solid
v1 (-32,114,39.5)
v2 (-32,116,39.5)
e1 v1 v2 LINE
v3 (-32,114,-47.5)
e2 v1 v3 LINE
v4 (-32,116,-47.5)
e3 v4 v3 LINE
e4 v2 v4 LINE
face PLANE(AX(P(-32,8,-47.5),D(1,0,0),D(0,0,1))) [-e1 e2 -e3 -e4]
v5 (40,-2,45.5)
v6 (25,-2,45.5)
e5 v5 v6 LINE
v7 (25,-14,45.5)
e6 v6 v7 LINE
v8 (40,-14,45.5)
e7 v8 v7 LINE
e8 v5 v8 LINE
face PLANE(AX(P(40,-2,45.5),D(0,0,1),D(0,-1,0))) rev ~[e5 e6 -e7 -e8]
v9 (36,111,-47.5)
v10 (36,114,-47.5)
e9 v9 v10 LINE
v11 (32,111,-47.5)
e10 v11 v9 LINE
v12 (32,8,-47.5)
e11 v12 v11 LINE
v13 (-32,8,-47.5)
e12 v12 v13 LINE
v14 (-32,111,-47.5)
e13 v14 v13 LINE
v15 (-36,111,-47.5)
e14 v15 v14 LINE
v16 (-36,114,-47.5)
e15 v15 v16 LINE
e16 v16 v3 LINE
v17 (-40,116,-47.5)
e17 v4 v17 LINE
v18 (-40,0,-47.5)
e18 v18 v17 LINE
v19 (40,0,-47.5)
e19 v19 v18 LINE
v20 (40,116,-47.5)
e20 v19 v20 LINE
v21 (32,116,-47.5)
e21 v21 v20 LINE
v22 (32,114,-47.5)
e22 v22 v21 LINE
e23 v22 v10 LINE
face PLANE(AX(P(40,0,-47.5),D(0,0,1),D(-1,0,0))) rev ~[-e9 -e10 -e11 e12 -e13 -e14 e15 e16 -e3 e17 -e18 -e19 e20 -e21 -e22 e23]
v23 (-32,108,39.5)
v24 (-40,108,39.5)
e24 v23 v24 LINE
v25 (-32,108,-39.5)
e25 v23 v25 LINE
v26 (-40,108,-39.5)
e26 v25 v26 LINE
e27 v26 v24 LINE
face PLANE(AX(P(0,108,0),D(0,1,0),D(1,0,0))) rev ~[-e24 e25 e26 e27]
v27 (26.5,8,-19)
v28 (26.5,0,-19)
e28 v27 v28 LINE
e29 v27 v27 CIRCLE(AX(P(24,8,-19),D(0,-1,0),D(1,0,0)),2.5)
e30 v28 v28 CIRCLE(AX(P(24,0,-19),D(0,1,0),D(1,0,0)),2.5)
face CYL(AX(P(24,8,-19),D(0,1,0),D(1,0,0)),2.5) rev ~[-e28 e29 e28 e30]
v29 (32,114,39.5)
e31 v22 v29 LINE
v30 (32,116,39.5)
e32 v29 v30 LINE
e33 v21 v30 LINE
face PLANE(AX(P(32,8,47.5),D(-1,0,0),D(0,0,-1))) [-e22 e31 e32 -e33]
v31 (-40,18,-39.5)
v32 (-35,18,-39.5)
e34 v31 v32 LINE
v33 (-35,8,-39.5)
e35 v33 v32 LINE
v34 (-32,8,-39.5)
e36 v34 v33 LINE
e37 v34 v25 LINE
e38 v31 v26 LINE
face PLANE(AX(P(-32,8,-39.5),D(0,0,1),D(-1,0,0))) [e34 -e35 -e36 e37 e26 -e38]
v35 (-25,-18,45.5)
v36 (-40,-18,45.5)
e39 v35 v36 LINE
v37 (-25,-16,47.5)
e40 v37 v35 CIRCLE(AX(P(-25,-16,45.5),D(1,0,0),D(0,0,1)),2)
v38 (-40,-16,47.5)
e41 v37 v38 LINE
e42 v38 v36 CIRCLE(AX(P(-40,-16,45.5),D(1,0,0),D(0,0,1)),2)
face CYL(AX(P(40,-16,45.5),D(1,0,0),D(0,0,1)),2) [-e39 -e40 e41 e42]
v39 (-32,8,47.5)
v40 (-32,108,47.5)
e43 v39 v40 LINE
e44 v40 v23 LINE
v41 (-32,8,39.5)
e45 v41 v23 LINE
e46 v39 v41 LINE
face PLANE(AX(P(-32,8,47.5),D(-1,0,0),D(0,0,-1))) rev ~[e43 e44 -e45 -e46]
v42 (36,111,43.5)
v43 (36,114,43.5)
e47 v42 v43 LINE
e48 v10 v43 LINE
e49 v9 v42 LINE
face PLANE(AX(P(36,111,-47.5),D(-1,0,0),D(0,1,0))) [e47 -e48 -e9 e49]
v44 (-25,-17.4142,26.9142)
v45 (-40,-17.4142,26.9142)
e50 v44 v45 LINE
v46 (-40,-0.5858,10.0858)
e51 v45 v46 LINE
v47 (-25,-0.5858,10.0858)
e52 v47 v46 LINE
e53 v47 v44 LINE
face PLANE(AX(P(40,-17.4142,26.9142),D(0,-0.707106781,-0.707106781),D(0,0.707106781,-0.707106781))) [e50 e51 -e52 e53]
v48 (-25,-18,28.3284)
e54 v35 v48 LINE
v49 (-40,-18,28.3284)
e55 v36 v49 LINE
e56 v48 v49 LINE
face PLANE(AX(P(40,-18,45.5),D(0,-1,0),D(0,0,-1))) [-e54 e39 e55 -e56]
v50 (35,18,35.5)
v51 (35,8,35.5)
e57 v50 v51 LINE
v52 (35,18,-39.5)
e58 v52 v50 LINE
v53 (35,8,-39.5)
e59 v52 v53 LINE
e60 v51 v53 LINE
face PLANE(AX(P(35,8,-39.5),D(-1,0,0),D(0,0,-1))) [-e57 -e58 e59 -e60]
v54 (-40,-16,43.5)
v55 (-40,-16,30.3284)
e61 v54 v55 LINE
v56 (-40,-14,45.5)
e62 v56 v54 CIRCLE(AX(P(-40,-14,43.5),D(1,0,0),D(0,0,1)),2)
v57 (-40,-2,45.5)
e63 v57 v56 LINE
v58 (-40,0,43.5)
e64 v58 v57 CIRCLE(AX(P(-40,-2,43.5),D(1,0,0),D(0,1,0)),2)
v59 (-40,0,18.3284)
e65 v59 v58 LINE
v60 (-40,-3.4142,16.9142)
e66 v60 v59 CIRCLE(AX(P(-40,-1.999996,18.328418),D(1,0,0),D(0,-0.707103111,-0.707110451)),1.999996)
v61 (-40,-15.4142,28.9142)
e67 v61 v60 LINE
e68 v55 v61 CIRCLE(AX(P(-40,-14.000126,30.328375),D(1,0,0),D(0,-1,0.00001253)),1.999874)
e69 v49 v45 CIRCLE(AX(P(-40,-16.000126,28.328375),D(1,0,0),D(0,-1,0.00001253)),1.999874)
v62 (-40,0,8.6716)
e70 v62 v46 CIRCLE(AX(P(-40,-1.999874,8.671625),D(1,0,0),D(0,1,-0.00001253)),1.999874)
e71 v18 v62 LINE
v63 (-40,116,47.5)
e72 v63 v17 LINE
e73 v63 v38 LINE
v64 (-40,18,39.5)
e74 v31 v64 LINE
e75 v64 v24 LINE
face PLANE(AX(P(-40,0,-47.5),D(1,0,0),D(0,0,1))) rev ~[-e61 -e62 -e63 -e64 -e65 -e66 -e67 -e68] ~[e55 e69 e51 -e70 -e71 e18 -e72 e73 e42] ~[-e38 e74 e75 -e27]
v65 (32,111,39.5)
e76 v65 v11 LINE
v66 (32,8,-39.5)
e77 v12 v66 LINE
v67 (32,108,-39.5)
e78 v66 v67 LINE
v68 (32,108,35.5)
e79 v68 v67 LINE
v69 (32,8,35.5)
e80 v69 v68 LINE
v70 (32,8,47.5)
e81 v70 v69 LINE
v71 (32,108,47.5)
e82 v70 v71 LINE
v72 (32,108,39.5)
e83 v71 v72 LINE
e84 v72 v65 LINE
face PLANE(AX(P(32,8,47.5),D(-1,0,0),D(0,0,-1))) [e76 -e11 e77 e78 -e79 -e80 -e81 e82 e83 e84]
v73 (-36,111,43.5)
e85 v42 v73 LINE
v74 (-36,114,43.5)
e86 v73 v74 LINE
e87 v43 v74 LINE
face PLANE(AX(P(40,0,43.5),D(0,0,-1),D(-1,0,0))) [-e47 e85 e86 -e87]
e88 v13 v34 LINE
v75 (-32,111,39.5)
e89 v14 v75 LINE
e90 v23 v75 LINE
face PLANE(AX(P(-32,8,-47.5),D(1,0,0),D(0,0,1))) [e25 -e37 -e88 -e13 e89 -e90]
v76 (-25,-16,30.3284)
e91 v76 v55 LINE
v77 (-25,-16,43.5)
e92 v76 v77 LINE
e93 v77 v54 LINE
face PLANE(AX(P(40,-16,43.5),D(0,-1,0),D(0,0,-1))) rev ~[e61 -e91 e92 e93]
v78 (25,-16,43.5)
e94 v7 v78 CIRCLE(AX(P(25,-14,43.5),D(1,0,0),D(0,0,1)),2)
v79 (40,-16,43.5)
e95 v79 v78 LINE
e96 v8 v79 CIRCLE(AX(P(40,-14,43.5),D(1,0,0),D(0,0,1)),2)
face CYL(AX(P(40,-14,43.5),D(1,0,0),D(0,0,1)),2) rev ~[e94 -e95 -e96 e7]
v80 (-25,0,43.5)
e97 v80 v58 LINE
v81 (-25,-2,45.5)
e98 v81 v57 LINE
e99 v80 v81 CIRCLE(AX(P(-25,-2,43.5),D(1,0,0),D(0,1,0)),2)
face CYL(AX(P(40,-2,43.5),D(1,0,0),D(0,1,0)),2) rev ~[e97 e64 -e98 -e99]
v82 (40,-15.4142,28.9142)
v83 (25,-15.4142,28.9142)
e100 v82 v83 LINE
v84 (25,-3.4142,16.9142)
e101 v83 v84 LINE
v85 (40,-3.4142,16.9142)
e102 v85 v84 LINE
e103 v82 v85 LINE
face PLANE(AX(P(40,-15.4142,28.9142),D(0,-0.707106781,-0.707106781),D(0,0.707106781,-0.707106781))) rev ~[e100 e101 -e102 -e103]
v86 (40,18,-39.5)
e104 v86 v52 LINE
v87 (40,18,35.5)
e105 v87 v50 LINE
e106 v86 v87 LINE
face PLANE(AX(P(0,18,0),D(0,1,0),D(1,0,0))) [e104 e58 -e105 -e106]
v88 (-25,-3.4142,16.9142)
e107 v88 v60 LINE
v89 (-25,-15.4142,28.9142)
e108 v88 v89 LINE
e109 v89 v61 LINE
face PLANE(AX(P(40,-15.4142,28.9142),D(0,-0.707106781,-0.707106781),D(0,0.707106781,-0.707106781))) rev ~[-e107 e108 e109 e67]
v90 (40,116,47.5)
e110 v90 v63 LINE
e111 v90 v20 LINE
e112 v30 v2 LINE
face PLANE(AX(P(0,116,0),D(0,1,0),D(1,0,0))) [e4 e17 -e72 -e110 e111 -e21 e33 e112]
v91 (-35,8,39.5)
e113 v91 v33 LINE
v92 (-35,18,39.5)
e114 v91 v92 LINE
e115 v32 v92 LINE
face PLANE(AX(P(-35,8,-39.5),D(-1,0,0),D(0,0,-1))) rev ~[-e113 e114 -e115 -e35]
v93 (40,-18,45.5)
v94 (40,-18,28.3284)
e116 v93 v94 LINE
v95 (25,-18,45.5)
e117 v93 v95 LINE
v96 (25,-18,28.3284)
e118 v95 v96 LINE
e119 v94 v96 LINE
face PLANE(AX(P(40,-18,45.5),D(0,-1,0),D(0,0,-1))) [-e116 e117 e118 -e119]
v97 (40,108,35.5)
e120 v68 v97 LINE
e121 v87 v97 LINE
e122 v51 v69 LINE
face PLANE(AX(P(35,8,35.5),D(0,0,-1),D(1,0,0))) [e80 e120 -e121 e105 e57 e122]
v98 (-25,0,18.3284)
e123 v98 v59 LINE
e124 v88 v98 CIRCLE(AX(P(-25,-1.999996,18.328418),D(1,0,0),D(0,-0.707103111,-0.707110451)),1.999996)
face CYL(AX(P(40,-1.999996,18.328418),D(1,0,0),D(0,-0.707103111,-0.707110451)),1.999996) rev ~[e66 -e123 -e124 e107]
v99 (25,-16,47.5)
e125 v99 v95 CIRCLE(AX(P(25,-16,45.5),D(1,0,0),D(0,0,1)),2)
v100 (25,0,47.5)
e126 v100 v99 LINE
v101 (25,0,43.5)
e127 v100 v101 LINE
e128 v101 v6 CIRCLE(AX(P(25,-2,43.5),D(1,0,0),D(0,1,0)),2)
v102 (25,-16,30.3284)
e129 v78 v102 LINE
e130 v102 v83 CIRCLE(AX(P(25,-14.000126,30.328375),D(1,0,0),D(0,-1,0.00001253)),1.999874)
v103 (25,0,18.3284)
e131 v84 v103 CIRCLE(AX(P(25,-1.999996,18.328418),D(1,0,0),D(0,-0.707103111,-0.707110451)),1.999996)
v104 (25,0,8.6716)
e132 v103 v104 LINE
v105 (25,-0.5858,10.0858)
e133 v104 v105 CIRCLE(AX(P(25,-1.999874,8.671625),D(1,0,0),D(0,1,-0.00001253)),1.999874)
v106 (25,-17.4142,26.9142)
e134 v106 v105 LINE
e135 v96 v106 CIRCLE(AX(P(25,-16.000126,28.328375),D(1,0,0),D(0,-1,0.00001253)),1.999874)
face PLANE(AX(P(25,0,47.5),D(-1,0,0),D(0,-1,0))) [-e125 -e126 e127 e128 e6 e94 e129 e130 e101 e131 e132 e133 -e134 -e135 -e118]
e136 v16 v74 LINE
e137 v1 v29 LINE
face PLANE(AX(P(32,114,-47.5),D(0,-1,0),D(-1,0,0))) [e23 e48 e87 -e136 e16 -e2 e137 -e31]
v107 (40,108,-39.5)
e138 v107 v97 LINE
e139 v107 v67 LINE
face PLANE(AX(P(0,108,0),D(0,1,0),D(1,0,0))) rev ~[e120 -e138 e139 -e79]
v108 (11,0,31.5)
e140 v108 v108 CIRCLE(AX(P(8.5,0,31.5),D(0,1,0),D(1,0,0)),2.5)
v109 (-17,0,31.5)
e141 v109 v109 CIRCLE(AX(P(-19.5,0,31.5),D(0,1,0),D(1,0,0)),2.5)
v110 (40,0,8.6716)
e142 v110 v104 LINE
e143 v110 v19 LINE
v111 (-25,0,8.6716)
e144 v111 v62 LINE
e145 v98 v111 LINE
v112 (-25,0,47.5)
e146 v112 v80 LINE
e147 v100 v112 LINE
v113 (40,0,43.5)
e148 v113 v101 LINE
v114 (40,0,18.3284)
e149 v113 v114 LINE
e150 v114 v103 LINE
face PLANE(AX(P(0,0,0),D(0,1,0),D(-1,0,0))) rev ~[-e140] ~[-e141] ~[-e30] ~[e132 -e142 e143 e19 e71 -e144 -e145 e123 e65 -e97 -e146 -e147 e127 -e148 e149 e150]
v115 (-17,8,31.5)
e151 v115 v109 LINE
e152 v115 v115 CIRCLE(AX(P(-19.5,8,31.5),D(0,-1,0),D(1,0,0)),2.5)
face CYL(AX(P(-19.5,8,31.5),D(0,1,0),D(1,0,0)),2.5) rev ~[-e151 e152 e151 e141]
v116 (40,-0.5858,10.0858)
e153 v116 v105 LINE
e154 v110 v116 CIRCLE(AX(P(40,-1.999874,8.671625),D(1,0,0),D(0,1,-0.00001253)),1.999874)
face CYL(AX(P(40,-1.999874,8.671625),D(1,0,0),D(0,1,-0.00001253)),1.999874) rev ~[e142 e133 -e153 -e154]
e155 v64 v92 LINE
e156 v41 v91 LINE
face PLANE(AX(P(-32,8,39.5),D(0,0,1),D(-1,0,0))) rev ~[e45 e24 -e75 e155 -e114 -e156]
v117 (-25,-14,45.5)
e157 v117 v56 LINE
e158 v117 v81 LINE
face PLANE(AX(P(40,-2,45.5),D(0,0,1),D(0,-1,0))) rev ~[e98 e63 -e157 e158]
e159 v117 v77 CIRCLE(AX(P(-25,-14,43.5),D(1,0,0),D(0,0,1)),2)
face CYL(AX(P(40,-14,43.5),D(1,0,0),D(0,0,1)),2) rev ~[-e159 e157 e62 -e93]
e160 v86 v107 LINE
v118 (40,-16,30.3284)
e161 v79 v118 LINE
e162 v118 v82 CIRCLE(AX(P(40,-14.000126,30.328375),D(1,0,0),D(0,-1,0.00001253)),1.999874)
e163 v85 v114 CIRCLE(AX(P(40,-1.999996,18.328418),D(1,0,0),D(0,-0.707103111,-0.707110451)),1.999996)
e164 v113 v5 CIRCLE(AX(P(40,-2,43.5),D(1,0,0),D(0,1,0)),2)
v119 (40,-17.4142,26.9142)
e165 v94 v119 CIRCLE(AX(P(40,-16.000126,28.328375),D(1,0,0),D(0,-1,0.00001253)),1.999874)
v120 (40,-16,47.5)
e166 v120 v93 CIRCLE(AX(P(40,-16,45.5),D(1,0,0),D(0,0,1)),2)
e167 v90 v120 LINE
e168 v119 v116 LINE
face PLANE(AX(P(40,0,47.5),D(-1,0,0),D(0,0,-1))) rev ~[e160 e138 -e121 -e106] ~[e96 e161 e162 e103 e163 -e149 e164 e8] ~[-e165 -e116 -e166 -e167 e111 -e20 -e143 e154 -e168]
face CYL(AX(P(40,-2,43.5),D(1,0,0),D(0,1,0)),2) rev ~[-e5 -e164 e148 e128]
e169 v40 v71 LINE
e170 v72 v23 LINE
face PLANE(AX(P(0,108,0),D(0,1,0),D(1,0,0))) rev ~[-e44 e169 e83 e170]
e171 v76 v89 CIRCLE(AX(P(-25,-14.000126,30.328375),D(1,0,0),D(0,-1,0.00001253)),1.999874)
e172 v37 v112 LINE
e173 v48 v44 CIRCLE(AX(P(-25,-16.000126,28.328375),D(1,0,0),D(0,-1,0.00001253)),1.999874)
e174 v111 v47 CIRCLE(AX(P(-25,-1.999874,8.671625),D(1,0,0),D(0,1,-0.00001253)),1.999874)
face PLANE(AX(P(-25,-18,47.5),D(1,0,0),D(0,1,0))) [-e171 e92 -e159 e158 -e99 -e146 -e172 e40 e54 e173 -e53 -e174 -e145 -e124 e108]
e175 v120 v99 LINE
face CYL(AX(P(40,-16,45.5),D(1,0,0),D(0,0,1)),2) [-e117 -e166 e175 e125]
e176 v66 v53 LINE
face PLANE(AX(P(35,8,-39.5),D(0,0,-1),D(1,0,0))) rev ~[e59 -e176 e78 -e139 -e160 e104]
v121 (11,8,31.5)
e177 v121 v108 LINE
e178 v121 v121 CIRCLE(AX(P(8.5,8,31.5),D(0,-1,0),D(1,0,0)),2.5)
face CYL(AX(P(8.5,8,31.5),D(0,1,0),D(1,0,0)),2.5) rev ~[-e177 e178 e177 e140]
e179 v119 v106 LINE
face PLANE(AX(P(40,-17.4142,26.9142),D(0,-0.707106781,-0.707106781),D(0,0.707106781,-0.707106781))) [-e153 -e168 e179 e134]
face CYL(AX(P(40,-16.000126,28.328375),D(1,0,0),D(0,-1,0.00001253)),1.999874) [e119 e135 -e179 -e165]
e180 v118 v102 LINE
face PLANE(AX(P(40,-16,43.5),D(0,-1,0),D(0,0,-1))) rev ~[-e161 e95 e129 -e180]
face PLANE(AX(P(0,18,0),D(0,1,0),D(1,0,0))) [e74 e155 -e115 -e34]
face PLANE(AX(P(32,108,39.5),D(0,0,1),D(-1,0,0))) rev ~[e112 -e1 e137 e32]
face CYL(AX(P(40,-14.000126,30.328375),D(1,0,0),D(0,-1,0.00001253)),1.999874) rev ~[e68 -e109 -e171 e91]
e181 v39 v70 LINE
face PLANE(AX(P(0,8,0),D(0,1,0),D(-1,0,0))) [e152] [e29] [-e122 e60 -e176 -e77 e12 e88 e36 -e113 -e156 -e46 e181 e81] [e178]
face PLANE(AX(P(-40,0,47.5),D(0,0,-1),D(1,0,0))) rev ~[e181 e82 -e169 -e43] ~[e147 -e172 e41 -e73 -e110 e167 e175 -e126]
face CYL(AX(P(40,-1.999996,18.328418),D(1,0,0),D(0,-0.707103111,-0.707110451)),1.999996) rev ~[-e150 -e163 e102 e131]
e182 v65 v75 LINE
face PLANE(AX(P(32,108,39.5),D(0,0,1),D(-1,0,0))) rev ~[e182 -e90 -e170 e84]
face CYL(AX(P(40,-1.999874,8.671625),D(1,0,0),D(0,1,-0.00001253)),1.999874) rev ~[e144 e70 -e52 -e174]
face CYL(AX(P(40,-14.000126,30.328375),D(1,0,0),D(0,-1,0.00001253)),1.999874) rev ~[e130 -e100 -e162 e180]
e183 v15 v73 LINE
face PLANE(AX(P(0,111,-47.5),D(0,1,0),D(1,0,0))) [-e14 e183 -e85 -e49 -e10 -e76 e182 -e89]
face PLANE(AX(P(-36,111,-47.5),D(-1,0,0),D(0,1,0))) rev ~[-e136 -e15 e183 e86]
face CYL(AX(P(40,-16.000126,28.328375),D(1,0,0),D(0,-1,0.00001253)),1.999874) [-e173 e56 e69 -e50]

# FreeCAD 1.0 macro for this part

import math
import FreeCAD as App
import Part
import Sketcher

V = App.Vector
Q = App.Units.Quantity

doc = App.newDocument("Part")
body = doc.addObject("PartDesign::Body", "Body")

sketch1 = doc.addObject("Sketcher::SketchObject", "Sketch")
body.addObject(sketch1)
sketch1.AttachmentSupport = (doc.XZ_Plane, [""])
sketch1.MapMode = "FlatFace"
sketch1.addGeometry(Part.LineSegment(V(40, 48, 0), V(40, -48, 0)), False)
sketch1.addGeometry(Part.LineSegment(V(40, -48, 0), V(-40, -48, 0)), False)
sketch1.addGeometry(Part.LineSegment(V(-40, -48, 0), V(-40, 48, 0)), False)
sketch1.addGeometry(Part.LineSegment(V(-40, 48, 0), V(40, 48, 0)), False)
sketch1.addConstraint(Sketcher.Constraint("Coincident", 0, 2, 1, 1))
sketch1.addConstraint(Sketcher.Constraint("Coincident", 1, 2, 2, 1))
sketch1.addConstraint(Sketcher.Constraint("Coincident", 2, 2, 3, 1))
sketch1.addConstraint(Sketcher.Constraint("Coincident", 3, 2, 0, 1))
sketch1.addConstraint(Sketcher.Constraint("Vertical", 0))
sketch1.addConstraint(Sketcher.Constraint("Horizontal", 1))
sketch1.addConstraint(Sketcher.Constraint("Vertical", 2))
sketch1.addConstraint(Sketcher.Constraint("Horizontal", 3))
sketch1.addConstraint(Sketcher.Constraint("Symmetric", 0, 2, 2, 2, -1, 1))
sketch1.addConstraint(Sketcher.Constraint("DistanceX", 1, 2, 1, 1, Q("80 mm")))
sketch1.addConstraint(Sketcher.Constraint("DistanceY", 0, 2, 0, 1, Q("95 mm")))
pad1 = doc.addObject("PartDesign::Pad", "Pad")
body.addObject(pad1)
pad1.Profile = sketch1
pad1.Length = 8
pad1.Reversed = True

sketch2 = doc.addObject("Sketcher::SketchObject", "Sketch001")
body.addObject(sketch2)
sketch2.AttachmentSupport = (doc.YZ_Plane, [""])
sketch2.MapMode = "FlatFace"
sketch2.AttachmentOffset = App.Placement(V(0, 0, 40), App.Rotation())
sketch2.addGeometry(Part.LineSegment(V(0, 43.5, 0), V(0, 47.5, 0)), False)
sketch2.addGeometry(Part.LineSegment(V(0, 47.5, 0), V(-16, 47.5, 0)), False)
sketch2.addGeometry(Part.ArcOfCircle(Part.Circle(V(-16, 45.5, 0), V(0, 0, 1), 2), math.radians(90), math.radians(180)), False)
sketch2.addGeometry(Part.LineSegment(V(-18, 45.5, 0), V(-18, 28.3, 0)), False)
sketch2.addGeometry(Part.ArcOfCircle(Part.Circle(V(-16, 28.3, 0), V(0, 0, 1), 2), math.radians(180), math.radians(225)), False)
sketch2.addGeometry(Part.LineSegment(V(-17.4, 26.9, 0), V(-0.6, 10.1, 0)), False)
sketch2.addGeometry(Part.ArcOfCircle(Part.Circle(V(-2, 8.7, 0), V(0, 0, 1), 2), math.radians(0), math.radians(45)), False)
sketch2.addGeometry(Part.LineSegment(V(0, 8.7, 0), V(0, 18.3, 0)), False)
sketch2.addGeometry(Part.ArcOfCircle(Part.Circle(V(-2, 18.3, 0), V(0, 0, 1), 2), math.radians(-135), math.radians(0)), False)
sketch2.addGeometry(Part.LineSegment(V(-3.4, 16.9, 0), V(-15.4, 28.9, 0)), False)
sketch2.addGeometry(Part.ArcOfCircle(Part.Circle(V(-14, 30.3, 0), V(0, 0, 1), 2), math.radians(180), math.radians(225)), False)
sketch2.addGeometry(Part.LineSegment(V(-16, 30.3, 0), V(-16, 43.5, 0)), False)
sketch2.addGeometry(Part.ArcOfCircle(Part.Circle(V(-14, 43.5, 0), V(0, 0, 1), 2), math.radians(90), math.radians(180)), False)
sketch2.addGeometry(Part.LineSegment(V(-14, 45.5, 0), V(-2, 45.5, 0)), False)
sketch2.addGeometry(Part.ArcOfCircle(Part.Circle(V(-2, 43.5, 0), V(0, 0, 1), 2), math.radians(0), math.radians(90)), False)
sketch2.addConstraint(Sketcher.Constraint("Coincident", 0, 2, 1, 1))
sketch2.addConstraint(Sketcher.Constraint("Tangent", 1, 2, 2, 1))
sketch2.addConstraint(Sketcher.Constraint("Tangent", 2, 2, 3, 1))
sketch2.addConstraint(Sketcher.Constraint("Tangent", 3, 2, 4, 1))
sketch2.addConstraint(Sketcher.Constraint("Tangent", 4, 2, 5, 1))
sketch2.addConstraint(Sketcher.Constraint("Tangent", 5, 2, 6, 2))
sketch2.addConstraint(Sketcher.Constraint("Tangent", 6, 1, 7, 1))
sketch2.addConstraint(Sketcher.Constraint("Tangent", 7, 2, 8, 2))
sketch2.addConstraint(Sketcher.Constraint("Tangent", 8, 1, 9, 1))
sketch2.addConstraint(Sketcher.Constraint("Tangent", 9, 2, 10, 2))
sketch2.addConstraint(Sketcher.Constraint("Tangent", 10, 1, 11, 1))
sketch2.addConstraint(Sketcher.Constraint("Tangent", 11, 2, 12, 2))
sketch2.addConstraint(Sketcher.Constraint("Tangent", 12, 1, 13, 1))
sketch2.addConstraint(Sketcher.Constraint("Tangent", 13, 2, 14, 2))
sketch2.addConstraint(Sketcher.Constraint("Tangent", 14, 1, 0, 1))
sketch2.addConstraint(Sketcher.Constraint("Vertical", 0))
sketch2.addConstraint(Sketcher.Constraint("Horizontal", 1))
sketch2.addConstraint(Sketcher.Constraint("Vertical", 3))
sketch2.addConstraint(Sketcher.Constraint("Vertical", 7))
sketch2.addConstraint(Sketcher.Constraint("Vertical", 11))
sketch2.addConstraint(Sketcher.Constraint("Horizontal", 13))
sketch2.addConstraint(Sketcher.Constraint("Equal", 2, 4))
sketch2.addConstraint(Sketcher.Constraint("Equal", 4, 6))
sketch2.addConstraint(Sketcher.Constraint("Equal", 6, 8))
sketch2.addConstraint(Sketcher.Constraint("Equal", 8, 10))
sketch2.addConstraint(Sketcher.Constraint("Equal", 10, 12))
sketch2.addConstraint(Sketcher.Constraint("Equal", 12, 14))
sketch2.addConstraint(Sketcher.Constraint("PointOnObject", 0, 2, -2))
sketch2.addConstraint(Sketcher.Constraint("PointOnObject", 6, 1, -2))
sketch2.addConstraint(Sketcher.Constraint("Parallel", 5, 9))
sketch2.addConstraint(Sketcher.Constraint("Horizontal", 2, 2, 12, 1))
sketch2.addConstraint(Sketcher.Constraint("Vertical", 1, 2, 10, 1))
sketch2.addConstraint(Sketcher.Constraint("Radius", 2, Q("2 mm")))
sketch2.addConstraint(Sketcher.Constraint("Angle", 5, Q("-45 deg")))
sketch2.addConstraint(Sketcher.Constraint("DistanceX", 2, 2, -1, 1, Q("18 mm")))
sketch2.addConstraint(Sketcher.Constraint("DistanceY", 4, 3, 10, 3, Q("2 mm")))
sketch2.addConstraint(Sketcher.Constraint("DistanceY", -1, 1, 2, 3, Q("45.5 mm")))
sketch2.addConstraint(Sketcher.Constraint("DistanceY", 3, 2, 3, 1, Q("17.1716 mm")))
pad2 = doc.addObject("PartDesign::Pad", "Pad001")
body.addObject(pad2)
pad2.Profile = sketch2
pad2.Length = 80
pad2.Reversed = True

sketch3 = doc.addObject("Sketcher::SketchObject", "Sketch002")
body.addObject(sketch3)
sketch3.AttachmentSupport = (doc.XY_Plane, [""])
sketch3.MapMode = "FlatFace"
sketch3.AttachmentOffset = App.Placement(V(0, 0, 47.5), App.Rotation())
sketch3.addGeometry(Part.LineSegment(V(25, -18, 0), V(25, 0, 0)), False)
sketch3.addGeometry(Part.LineSegment(V(25, 0, 0), V(-25, 0, 0)), False)
sketch3.addGeometry(Part.LineSegment(V(-25, 0, 0), V(-25, -18, 0)), False)
sketch3.addGeometry(Part.LineSegment(V(-25, -18, 0), V(25, -18, 0)), False)
sketch3.addConstraint(Sketcher.Constraint("Coincident", 0, 2, 1, 1))
sketch3.addConstraint(Sketcher.Constraint("Coincident", 1, 2, 2, 1))
sketch3.addConstraint(Sketcher.Constraint("Coincident", 2, 2, 3, 1))
sketch3.addConstraint(Sketcher.Constraint("Coincident", 3, 2, 0, 1))
sketch3.addConstraint(Sketcher.Constraint("Vertical", 0))
sketch3.addConstraint(Sketcher.Constraint("Horizontal", 1))
sketch3.addConstraint(Sketcher.Constraint("Vertical", 2))
sketch3.addConstraint(Sketcher.Constraint("Horizontal", 3))
sketch3.addConstraint(Sketcher.Constraint("Symmetric", 0, 2, 1, 2, -1, 1))
sketch3.addConstraint(Sketcher.Constraint("DistanceX", 1, 2, 1, 1, Q("50 mm")))
sketch3.addConstraint(Sketcher.Constraint("DistanceY", 0, 1, 0, 2, Q("18 mm")))
pocket1 = doc.addObject("PartDesign::Pocket", "Pocket")
body.addObject(pocket1)
pocket1.Profile = sketch3
pocket1.Length = 39

sketch4 = doc.addObject("Sketcher::SketchObject", "Sketch003")
body.addObject(sketch4)
sketch4.AttachmentSupport = (doc.XZ_Plane, [""])
sketch4.MapMode = "FlatFace"
sketch4.AttachmentOffset = App.Placement(V(0, 0, -8), App.Rotation())
sketch4.addGeometry(Part.LineSegment(V(40, -48, 0), V(35, -48, 0)), False)
sketch4.addGeometry(Part.LineSegment(V(35, -48, 0), V(35, 48, 0)), False)
sketch4.addGeometry(Part.LineSegment(V(35, 48, 0), V(40, 48, 0)), False)
sketch4.addGeometry(Part.LineSegment(V(40, 48, 0), V(40, -48, 0)), False)
sketch4.addGeometry(Part.LineSegment(V(-35, -48, 0), V(-40, -48, 0)), False)
sketch4.addGeometry(Part.LineSegment(V(-40, -48, 0), V(-40, 48, 0)), False)
sketch4.addGeometry(Part.LineSegment(V(-40, 48, 0), V(-35, 48, 0)), False)
sketch4.addGeometry(Part.LineSegment(V(-35, 48, 0), V(-35, -48, 0)), False)
sketch4.addConstraint(Sketcher.Constraint("Coincident", 0, 2, 1, 1))
sketch4.addConstraint(Sketcher.Constraint("Coincident", 1, 2, 2, 1))
sketch4.addConstraint(Sketcher.Constraint("Coincident", 2, 2, 3, 1))
sketch4.addConstraint(Sketcher.Constraint("Coincident", 3, 2, 0, 1))
sketch4.addConstraint(Sketcher.Constraint("Coincident", 4, 2, 5, 1))
sketch4.addConstraint(Sketcher.Constraint("Coincident", 5, 2, 6, 1))
sketch4.addConstraint(Sketcher.Constraint("Coincident", 6, 2, 7, 1))
sketch4.addConstraint(Sketcher.Constraint("Coincident", 7, 2, 4, 1))
sketch4.addConstraint(Sketcher.Constraint("Horizontal", 0))
sketch4.addConstraint(Sketcher.Constraint("Vertical", 1))
sketch4.addConstraint(Sketcher.Constraint("Horizontal", 2))
sketch4.addConstraint(Sketcher.Constraint("Vertical", 3))
sketch4.addConstraint(Sketcher.Constraint("Horizontal", 4))
sketch4.addConstraint(Sketcher.Constraint("Vertical", 5))
sketch4.addConstraint(Sketcher.Constraint("Horizontal", 6))
sketch4.addConstraint(Sketcher.Constraint("Vertical", 7))
sketch4.addConstraint(Sketcher.Constraint("Symmetric", 2, 2, 4, 2, -1, 1))
sketch4.addConstraint(Sketcher.Constraint("Symmetric", 0, 2, 6, 2, -1, 1))
sketch4.addConstraint(Sketcher.Constraint("Horizontal", 3, 2, 4, 2))
sketch4.addConstraint(Sketcher.Constraint("DistanceX", 0, 2, 0, 1, Q("5 mm")))
sketch4.addConstraint(Sketcher.Constraint("DistanceY", 1, 1, 1, 2, Q("95 mm")))
sketch4.addConstraint(Sketcher.Constraint("DistanceX", -1, 1, 0, 2, Q("35 mm")))
pad3 = doc.addObject("PartDesign::Pad", "Pad002")
body.addObject(pad3)
pad3.Profile = sketch4
pad3.Length = 10
pad3.Reversed = True

sketch5 = doc.addObject("Sketcher::SketchObject", "Sketch004")
body.addObject(sketch5)
sketch5.AttachmentSupport = (doc.XZ_Plane, [""])
sketch5.MapMode = "FlatFace"
sketch5.AttachmentOffset = App.Placement(V(0, 0, -8), App.Rotation())
sketch5.addGeometry(Part.LineSegment(V(40, -40, 0), V(40, -48, 0)), False)
sketch5.addGeometry(Part.LineSegment(V(40, -48, 0), V(32, -48, 0)), False)
sketch5.addGeometry(Part.LineSegment(V(32, -48, 0), V(32, -40, 0)), False)
sketch5.addGeometry(Part.LineSegment(V(32, -40, 0), V(40, -40, 0)), False)
sketch5.addGeometry(Part.LineSegment(V(-40, 48, 0), V(-32, 48, 0)), False)
sketch5.addGeometry(Part.LineSegment(V(-32, 48, 0), V(-32, 40, 0)), False)
sketch5.addGeometry(Part.LineSegment(V(-32, 40, 0), V(-40, 40, 0)), False)
sketch5.addGeometry(Part.LineSegment(V(-40, 40, 0), V(-40, 48, 0)), False)
sketch5.addGeometry(Part.LineSegment(V(40, 36, 0), V(32, 36, 0)), False)
sketch5.addGeometry(Part.LineSegment(V(32, 36, 0), V(32, 48, 0)), False)
sketch5.addGeometry(Part.LineSegment(V(32, 48, 0), V(40, 48, 0)), False)
sketch5.addGeometry(Part.LineSegment(V(40, 48, 0), V(40, 36, 0)), False)
sketch5.addGeometry(Part.LineSegment(V(-32, -40, 0), V(-32, -48, 0)), False)
sketch5.addGeometry(Part.LineSegment(V(-32, -48, 0), V(-40, -48, 0)), False)
sketch5.addGeometry(Part.LineSegment(V(-40, -48, 0), V(-40, -40, 0)), False)
sketch5.addGeometry(Part.LineSegment(V(-40, -40, 0), V(-32, -40, 0)), False)
sketch5.addConstraint(Sketcher.Constraint("Coincident", 0, 2, 1, 1))
sketch5.addConstraint(Sketcher.Constraint("Coincident", 1, 2, 2, 1))
sketch5.addConstraint(Sketcher.Constraint("Coincident", 2, 2, 3, 1))
sketch5.addConstraint(Sketcher.Constraint("Coincident", 3, 2, 0, 1))
sketch5.addConstraint(Sketcher.Constraint("Coincident", 4, 2, 5, 1))
sketch5.addConstraint(Sketcher.Constraint("Coincident", 5, 2, 6, 1))
sketch5.addConstraint(Sketcher.Constraint("Coincident", 6, 2, 7, 1))
sketch5.addConstraint(Sketcher.Constraint("Coincident", 7, 2, 4, 1))
sketch5.addConstraint(Sketcher.Constraint("Coincident", 8, 2, 9, 1))
sketch5.addConstraint(Sketcher.Constraint("Coincident", 9, 2, 10, 1))
sketch5.addConstraint(Sketcher.Constraint("Coincident", 10, 2, 11, 1))
sketch5.addConstraint(Sketcher.Constraint("Coincident", 11, 2, 8, 1))
sketch5.addConstraint(Sketcher.Constraint("Coincident", 12, 2, 13, 1))
sketch5.addConstraint(Sketcher.Constraint("Coincident", 13, 2, 14, 1))
sketch5.addConstraint(Sketcher.Constraint("Coincident", 14, 2, 15, 1))
sketch5.addConstraint(Sketcher.Constraint("Coincident", 15, 2, 12, 1))
sketch5.addConstraint(Sketcher.Constraint("Vertical", 0))
sketch5.addConstraint(Sketcher.Constraint("Horizontal", 1))
sketch5.addConstraint(Sketcher.Constraint("Vertical", 2))
sketch5.addConstraint(Sketcher.Constraint("Horizontal", 3))
sketch5.addConstraint(Sketcher.Constraint("Horizontal", 4))
sketch5.addConstraint(Sketcher.Constraint("Vertical", 5))
sketch5.addConstraint(Sketcher.Constraint("Horizontal", 6))
sketch5.addConstraint(Sketcher.Constraint("Vertical", 7))
sketch5.addConstraint(Sketcher.Constraint("Horizontal", 8))
sketch5.addConstraint(Sketcher.Constraint("Vertical", 9))
sketch5.addConstraint(Sketcher.Constraint("Horizontal", 10))
sketch5.addConstraint(Sketcher.Constraint("Vertical", 11))
sketch5.addConstraint(Sketcher.Constraint("Vertical", 12))
sketch5.addConstraint(Sketcher.Constraint("Horizontal", 13))
sketch5.addConstraint(Sketcher.Constraint("Vertical", 14))
sketch5.addConstraint(Sketcher.Constraint("Horizontal", 15))
sketch5.addConstraint(Sketcher.Constraint("Symmetric", 1, 2, 4, 2, -1, 1))
sketch5.addConstraint(Sketcher.Constraint("Symmetric", 3, 2, 6, 2, -1, 1))
sketch5.addConstraint(Sketcher.Constraint("Symmetric", 9, 2, 12, 2, -1, 1))
sketch5.addConstraint(Sketcher.Constraint("Symmetric", 4, 2, 9, 2, -2))
sketch5.addConstraint(Sketcher.Constraint("Symmetric", 3, 2, 14, 2, -2))
sketch5.addConstraint(Sketcher.Constraint("Vertical", 3, 2, 10, 2))
sketch5.addConstraint(Sketcher.Constraint("Equal", 15, 0))
sketch5.addConstraint(Sketcher.Constraint("DistanceX", 1, 2, 1, 1, Q("8 mm")))
sketch5.addConstraint(Sketcher.Constraint("DistanceY", 9, 1, 9, 2, Q("12 mm")))
sketch5.addConstraint(Sketcher.Constraint("DistanceX", -1, 1, 0, 2, Q("40 mm")))
sketch5.addConstraint(Sketcher.Constraint("DistanceY", 2, 2, 4, 2, Q("87 mm")))
pad4 = doc.addObject("PartDesign::Pad", "Pad003")
body.addObject(pad4)
pad4.Profile = sketch5
pad4.Length = 100
pad4.Reversed = True

sketch6 = doc.addObject("Sketcher::SketchObject", "Sketch005")
body.addObject(sketch6)
sketch6.AttachmentSupport = (doc.XZ_Plane, [""])
sketch6.MapMode = "FlatFace"
sketch6.AttachmentOffset = App.Placement(V(0, 0, -108), App.Rotation())
sketch6.addGeometry(Part.LineSegment(V(-40, 48, 0), V(40, 48, 0)), False)
sketch6.addGeometry(Part.LineSegment(V(40, 48, 0), V(40, -48, 0)), False)
sketch6.addGeometry(Part.LineSegment(V(40, -48, 0), V(32, -48, 0)), False)
sketch6.addGeometry(Part.LineSegment(V(32, -48, 0), V(32, 40, 0)), False)
sketch6.addGeometry(Part.LineSegment(V(32, 40, 0), V(-32, 40, 0)), False)
sketch6.addGeometry(Part.LineSegment(V(-32, 40, 0), V(-32, -48, 0)), False)
sketch6.addGeometry(Part.LineSegment(V(-32, -48, 0), V(-40, -48, 0)), False)
sketch6.addGeometry(Part.LineSegment(V(-40, -48, 0), V(-40, 48, 0)), False)
sketch6.addConstraint(Sketcher.Constraint("Coincident", 0, 2, 1, 1))
sketch6.addConstraint(Sketcher.Constraint("Coincident", 1, 2, 2, 1))
sketch6.addConstraint(Sketcher.Constraint("Coincident", 2, 2, 3, 1))
sketch6.addConstraint(Sketcher.Constraint("Coincident", 3, 2, 4, 1))
sketch6.addConstraint(Sketcher.Constraint("Coincident", 4, 2, 5, 1))
sketch6.addConstraint(Sketcher.Constraint("Coincident", 5, 2, 6, 1))
sketch6.addConstraint(Sketcher.Constraint("Coincident", 6, 2, 7, 1))
sketch6.addConstraint(Sketcher.Constraint("Coincident", 7, 2, 0, 1))
sketch6.addConstraint(Sketcher.Constraint("Horizontal", 0))
sketch6.addConstraint(Sketcher.Constraint("Vertical", 1))
sketch6.addConstraint(Sketcher.Constraint("Horizontal", 2))
sketch6.addConstraint(Sketcher.Constraint("Vertical", 3))
sketch6.addConstraint(Sketcher.Constraint("Horizontal", 4))
sketch6.addConstraint(Sketcher.Constraint("Vertical", 5))
sketch6.addConstraint(Sketcher.Constraint("Horizontal", 6))
sketch6.addConstraint(Sketcher.Constraint("Vertical", 7))
sketch6.addConstraint(Sketcher.Constraint("Symmetric", 0, 2, 6, 2, -1, 1))
sketch6.addConstraint(Sketcher.Constraint("Symmetric", 2, 2, 5, 2, -2))
sketch6.addConstraint(Sketcher.Constraint("DistanceX", 0, 1, 0, 2, Q("80 mm")))
sketch6.addConstraint(Sketcher.Constraint("DistanceX", 2, 2, 2, 1, Q("8 mm")))
sketch6.addConstraint(Sketcher.Constraint("DistanceY", 1, 2, 1, 1, Q("95 mm")))
sketch6.addConstraint(Sketcher.Constraint("DistanceY", 3, 1, 3, 2, Q("87 mm")))
pad5 = doc.addObject("PartDesign::Pad", "Pad004")
body.addObject(pad5)
pad5.Profile = sketch6
pad5.Length = 8
pad5.Reversed = True

sketch7 = doc.addObject("Sketcher::SketchObject", "Sketch006")
body.addObject(sketch7)
sketch7.AttachmentSupport = (doc.XY_Plane, [""])
sketch7.MapMode = "FlatFace"
sketch7.AttachmentOffset = App.Placement(V(0, 0, -47.5), App.Rotation())
sketch7.addGeometry(Part.LineSegment(V(-36, 111, 0), V(-36, 114, 0)), False)
sketch7.addGeometry(Part.LineSegment(V(-36, 114, 0), V(36, 114, 0)), False)
sketch7.addGeometry(Part.LineSegment(V(36, 114, 0), V(36, 111, 0)), False)
sketch7.addGeometry(Part.LineSegment(V(36, 111, 0), V(-36, 111, 0)), False)
sketch7.addConstraint(Sketcher.Constraint("Coincident", 0, 2, 1, 1))
sketch7.addConstraint(Sketcher.Constraint("Coincident", 1, 2, 2, 1))
sketch7.addConstraint(Sketcher.Constraint("Coincident", 2, 2, 3, 1))
sketch7.addConstraint(Sketcher.Constraint("Coincident", 3, 2, 0, 1))
sketch7.addConstraint(Sketcher.Constraint("Vertical", 0))
sketch7.addConstraint(Sketcher.Constraint("Horizontal", 1))
sketch7.addConstraint(Sketcher.Constraint("Vertical", 2))
sketch7.addConstraint(Sketcher.Constraint("Horizontal", 3))
sketch7.addConstraint(Sketcher.Constraint("DistanceY", 0, 1, 0, 2, Q("3 mm")))
sketch7.addConstraint(Sketcher.Constraint("DistanceX", 1, 1, 1, 2, Q("72 mm")))
sketch7.addConstraint(Sketcher.Constraint("DistanceX", 0, 2, -1, 1, Q("36 mm")))
sketch7.addConstraint(Sketcher.Constraint("DistanceY", -1, 1, 0, 2, Q("114 mm")))
pocket2 = doc.addObject("PartDesign::Pocket", "Pocket001")
body.addObject(pocket2)
pocket2.Profile = sketch7
pocket2.Length = 91
pocket2.Reversed = True

sketch8 = doc.addObject("Sketcher::SketchObject", "Sketch007")
body.addObject(sketch8)
sketch8.AttachmentSupport = (doc.XZ_Plane, [""])
sketch8.MapMode = "FlatFace"
sketch8.AttachmentOffset = App.Placement(V(0, 0, -8), App.Rotation())
sketch8.addGeometry(Part.Circle(V(8.5, 31.5, 0), V(0, 0, 1), 2.5), False)
sketch8.addGeometry(Part.Circle(V(-19.5, 31.5, 0), V(0, 0, 1), 2.5), False)
sketch8.addGeometry(Part.Circle(V(24, -19, 0), V(0, 0, 1), 2.5), False)
sketch8.addConstraint(Sketcher.Constraint("Equal", 0, 1))
sketch8.addConstraint(Sketcher.Constraint("Equal", 1, 2))
sketch8.addConstraint(Sketcher.Constraint("Horizontal", 0, 3, 1, 3))
sketch8.addConstraint(Sketcher.Constraint("Diameter", 0, Q("5 mm")))
sketch8.addConstraint(Sketcher.Constraint("DistanceX", -1, 1, 2, 3, Q("24 mm")))
sketch8.addConstraint(Sketcher.Constraint("DistanceX", -1, 1, 0, 3, Q("8.5 mm")))
sketch8.addConstraint(Sketcher.Constraint("DistanceY", -1, 1, 0, 3, Q("31.5 mm")))
sketch8.addConstraint(Sketcher.Constraint("DistanceX", 1, 3, -1, 1, Q("19.5 mm")))
sketch8.addConstraint(Sketcher.Constraint("DistanceY", 2, 3, -1, 1, Q("19 mm")))
pocket3 = doc.addObject("PartDesign::Pocket", "Pocket002")
body.addObject(pocket3)
pocket3.Profile = sketch8
pocket3.Length = 10
pocket3.Reversed = True

doc.recompute()
